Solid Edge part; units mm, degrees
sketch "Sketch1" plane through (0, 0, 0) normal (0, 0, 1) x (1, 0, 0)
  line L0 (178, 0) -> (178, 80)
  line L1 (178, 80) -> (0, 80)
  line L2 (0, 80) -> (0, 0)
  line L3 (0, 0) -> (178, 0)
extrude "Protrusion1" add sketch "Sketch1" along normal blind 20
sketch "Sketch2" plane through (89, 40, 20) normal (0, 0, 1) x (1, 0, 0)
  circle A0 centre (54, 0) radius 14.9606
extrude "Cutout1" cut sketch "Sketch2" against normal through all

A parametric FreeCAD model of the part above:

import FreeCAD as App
import Part
import Sketcher
Q = App.Units.Quantity

doc = App.newDocument("Part")
body = doc.addObject("PartDesign::Body", "Body")

sketch1 = body.newObject("Sketcher::SketchObject", "Sketch")
sketch1.AttachmentSupport = (doc.getObject("XY_Plane"), [""])
sketch1.MapMode = "FlatFace"
sketch1.addGeometry(Part.LineSegment(App.Vector(0, 0, 0), App.Vector(178, 0, 0)), False)
sketch1.addGeometry(Part.LineSegment(App.Vector(178, 0, 0), App.Vector(178, 80, 0)), False)
sketch1.addGeometry(Part.LineSegment(App.Vector(178, 80, 0), App.Vector(0, 80, 0)), False)
sketch1.addGeometry(Part.LineSegment(App.Vector(0, 80, 0), App.Vector(0, 0, 0)), False)
sketch1.addConstraint(Sketcher.Constraint("Coincident", 0, 2, 1, 1))
sketch1.addConstraint(Sketcher.Constraint("Coincident", 1, 2, 2, 1))
sketch1.addConstraint(Sketcher.Constraint("Coincident", 2, 2, 3, 1))
sketch1.addConstraint(Sketcher.Constraint("Coincident", 3, 2, 0, 1))
sketch1.addConstraint(Sketcher.Constraint("Horizontal", 0))
sketch1.addConstraint(Sketcher.Constraint("Vertical", 1))
sketch1.addConstraint(Sketcher.Constraint("Horizontal", 2))
sketch1.addConstraint(Sketcher.Constraint("Vertical", 3))
sketch1.addConstraint(Sketcher.Constraint("Coincident", 3, 2, -1, 1))
sketch1.addConstraint(Sketcher.Constraint("DistanceX", 0, 1, 0, 2, Q("178 mm")))
sketch1.addConstraint(Sketcher.Constraint("DistanceY", 1, 1, 1, 2, Q("80 mm")))
pad1 = body.newObject("PartDesign::Pad", "Pad")
pad1.Profile = sketch1
pad1.Length = 20

sketch2 = body.newObject("Sketcher::SketchObject", "Sketch001")
sketch2.AttachmentSupport = (doc.getObject("XY_Plane"), [""])
sketch2.MapMode = "FlatFace"
sketch2.AttachmentOffset = App.Placement(App.Vector(0, 0, 20), App.Rotation())
sketch2.addGeometry(Part.Circle(App.Vector(143, 40, 0), App.Vector(0, 0, 1), 14.9606), False)
sketch2.addConstraint(Sketcher.Constraint("DistanceX", -1, 1, 0, 3, Q("143 mm")))
sketch2.addConstraint(Sketcher.Constraint("DistanceY", -1, 1, 0, 3, Q("40 mm")))
sketch2.addConstraint(Sketcher.Constraint("Diameter", 0, Q("29.9212 mm")))
pocket1 = body.newObject("PartDesign::Pocket", "Pocket")
pocket1.Profile = sketch2
pocket1.Type = "ThroughAll"

doc.recompute()
